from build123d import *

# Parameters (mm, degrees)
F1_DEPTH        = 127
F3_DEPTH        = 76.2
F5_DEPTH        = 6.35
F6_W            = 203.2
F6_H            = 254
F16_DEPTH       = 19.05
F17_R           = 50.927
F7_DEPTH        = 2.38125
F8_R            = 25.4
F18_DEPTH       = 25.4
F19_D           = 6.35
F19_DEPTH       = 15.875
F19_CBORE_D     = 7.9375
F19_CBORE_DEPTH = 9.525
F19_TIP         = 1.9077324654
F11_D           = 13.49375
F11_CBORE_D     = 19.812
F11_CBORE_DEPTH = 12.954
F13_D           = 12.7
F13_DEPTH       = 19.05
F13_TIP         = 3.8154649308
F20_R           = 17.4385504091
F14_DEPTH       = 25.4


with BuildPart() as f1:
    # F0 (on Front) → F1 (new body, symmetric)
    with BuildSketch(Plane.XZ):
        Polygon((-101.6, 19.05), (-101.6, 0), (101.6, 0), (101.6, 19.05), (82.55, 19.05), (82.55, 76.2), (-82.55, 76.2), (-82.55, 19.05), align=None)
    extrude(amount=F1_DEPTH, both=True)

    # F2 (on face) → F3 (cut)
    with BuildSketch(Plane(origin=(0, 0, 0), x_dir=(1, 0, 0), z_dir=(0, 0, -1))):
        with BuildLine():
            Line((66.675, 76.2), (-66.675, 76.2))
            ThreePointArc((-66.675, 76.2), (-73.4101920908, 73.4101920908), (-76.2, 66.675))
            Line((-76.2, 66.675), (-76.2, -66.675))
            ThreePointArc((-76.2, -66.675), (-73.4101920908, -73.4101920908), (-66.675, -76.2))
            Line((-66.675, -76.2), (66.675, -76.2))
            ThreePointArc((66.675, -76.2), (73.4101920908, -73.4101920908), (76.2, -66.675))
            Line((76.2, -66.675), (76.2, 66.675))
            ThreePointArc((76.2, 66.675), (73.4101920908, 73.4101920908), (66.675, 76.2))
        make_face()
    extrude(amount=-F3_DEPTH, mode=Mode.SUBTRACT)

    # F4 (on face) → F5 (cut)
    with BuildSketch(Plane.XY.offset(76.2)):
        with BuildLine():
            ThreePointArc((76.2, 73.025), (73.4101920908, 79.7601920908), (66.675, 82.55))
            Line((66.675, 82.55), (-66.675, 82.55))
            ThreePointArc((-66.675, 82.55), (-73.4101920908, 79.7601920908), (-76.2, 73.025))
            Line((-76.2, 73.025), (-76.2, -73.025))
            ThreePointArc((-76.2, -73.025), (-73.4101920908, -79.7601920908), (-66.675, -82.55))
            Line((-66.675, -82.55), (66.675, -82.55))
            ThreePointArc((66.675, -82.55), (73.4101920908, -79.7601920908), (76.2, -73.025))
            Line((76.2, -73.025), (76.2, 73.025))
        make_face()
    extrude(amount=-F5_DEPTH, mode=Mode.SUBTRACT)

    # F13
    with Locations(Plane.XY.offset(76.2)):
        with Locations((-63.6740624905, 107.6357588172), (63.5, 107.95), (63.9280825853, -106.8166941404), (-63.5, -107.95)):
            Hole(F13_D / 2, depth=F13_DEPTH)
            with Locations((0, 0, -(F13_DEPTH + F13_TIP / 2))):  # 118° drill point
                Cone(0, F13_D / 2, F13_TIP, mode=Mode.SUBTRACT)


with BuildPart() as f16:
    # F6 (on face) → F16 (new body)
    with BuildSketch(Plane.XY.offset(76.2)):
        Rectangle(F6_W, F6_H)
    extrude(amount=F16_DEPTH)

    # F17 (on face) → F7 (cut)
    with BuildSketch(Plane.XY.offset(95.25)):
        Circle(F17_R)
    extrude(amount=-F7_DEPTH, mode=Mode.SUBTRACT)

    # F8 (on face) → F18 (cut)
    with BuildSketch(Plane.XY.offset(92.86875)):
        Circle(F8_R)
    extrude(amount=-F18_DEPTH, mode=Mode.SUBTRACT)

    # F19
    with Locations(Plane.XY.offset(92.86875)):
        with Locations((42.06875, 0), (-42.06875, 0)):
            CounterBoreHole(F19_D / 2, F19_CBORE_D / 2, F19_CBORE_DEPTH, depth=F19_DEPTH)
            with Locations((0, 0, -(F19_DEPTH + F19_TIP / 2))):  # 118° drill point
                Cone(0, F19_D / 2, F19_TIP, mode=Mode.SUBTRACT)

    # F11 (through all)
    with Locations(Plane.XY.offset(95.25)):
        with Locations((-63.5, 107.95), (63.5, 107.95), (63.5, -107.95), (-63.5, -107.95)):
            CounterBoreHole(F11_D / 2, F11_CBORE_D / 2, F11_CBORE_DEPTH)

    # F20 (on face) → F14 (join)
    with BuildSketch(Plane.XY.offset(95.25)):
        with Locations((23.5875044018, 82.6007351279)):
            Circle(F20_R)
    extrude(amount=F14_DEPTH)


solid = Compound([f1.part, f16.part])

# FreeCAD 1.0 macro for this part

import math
import FreeCAD as App
import Part
import Sketcher

V = App.Vector
Q = App.Units.Quantity

doc = App.newDocument("Part")
body = doc.addObject("PartDesign::Body", "Body")

# Sketch on XZ plane
sketch1 = body.newObject("Sketcher::SketchObject", "Sketch")
sketch1.AttachmentSupport = (doc.getObject("XZ_Plane"), [""])
sketch1.MapMode = "FlatFace"
sketch1.addGeometry(Part.LineSegment(V(-101.6, 19.05, 0), V(-101.6, 0, 0)), False)
sketch1.addGeometry(Part.LineSegment(V(-101.6, 0, 0), V(101.6, 0, 0)), False)
sketch1.addGeometry(Part.LineSegment(V(101.6, 0, 0), V(101.6, 19.05, 0)), False)
sketch1.addGeometry(Part.LineSegment(V(101.6, 19.05, 0), V(82.55, 19.05, 0)), False)
sketch1.addGeometry(Part.LineSegment(V(82.55, 19.05, 0), V(82.55, 76.2, 0)), False)
sketch1.addGeometry(Part.LineSegment(V(82.55, 76.2, 0), V(-82.55, 76.2, 0)), False)
sketch1.addGeometry(Part.LineSegment(V(-82.55, 76.2, 0), V(-82.55, 19.05, 0)), False)
sketch1.addGeometry(Part.LineSegment(V(-82.55, 19.05, 0), V(-101.6, 19.05, 0)), False)
sketch1.addConstraint(Sketcher.Constraint("Coincident", 0, 2, 1, 1))
sketch1.addConstraint(Sketcher.Constraint("Coincident", 1, 2, 2, 1))
sketch1.addConstraint(Sketcher.Constraint("Coincident", 2, 2, 3, 1))
sketch1.addConstraint(Sketcher.Constraint("Coincident", 3, 2, 4, 1))
sketch1.addConstraint(Sketcher.Constraint("Coincident", 4, 2, 5, 1))
sketch1.addConstraint(Sketcher.Constraint("Coincident", 5, 2, 6, 1))
sketch1.addConstraint(Sketcher.Constraint("Coincident", 6, 2, 7, 1))
sketch1.addConstraint(Sketcher.Constraint("Coincident", 7, 2, 0, 1))
sketch1.addConstraint(Sketcher.Constraint("Vertical", 0))
sketch1.addConstraint(Sketcher.Constraint("Horizontal", 1))
sketch1.addConstraint(Sketcher.Constraint("Vertical", 2))
sketch1.addConstraint(Sketcher.Constraint("Horizontal", 3))
sketch1.addConstraint(Sketcher.Constraint("Vertical", 4))
sketch1.addConstraint(Sketcher.Constraint("Horizontal", 5))
sketch1.addConstraint(Sketcher.Constraint("Vertical", 6))
sketch1.addConstraint(Sketcher.Constraint("Horizontal", 7))
sketch1.addConstraint(Sketcher.Constraint("Symmetric", 0, 2, 1, 2, -1, 1))
sketch1.addConstraint(Sketcher.Constraint("Symmetric", 3, 2, 6, 2, -2))
sketch1.addConstraint(Sketcher.Constraint("Equal", 7, 0))
sketch1.addConstraint(Sketcher.Constraint("DistanceX", 1, 1, 1, 2, Q("8 in")))
sketch1.addConstraint(Sketcher.Constraint("DistanceX", 5, 2, 5, 1, Q("6.5 in")))
sketch1.addConstraint(Sketcher.Constraint("DistanceY", -1, 1, 4, 2, Q("3 in")))
pad1 = body.newObject("PartDesign::Pad", "Pad")
pad1.Profile = sketch1
pad1.Length = Q("10 in")
pad1.Midplane = True

# Sketch on XY plane
sketch2 = body.newObject("Sketcher::SketchObject", "Sketch001")
sketch2.AttachmentSupport = (doc.getObject("XY_Plane"), [""])
sketch2.MapMode = "FlatFace"
sketch2.addGeometry(Part.LineSegment(V(66.675, -76.2, 0), V(-66.675, -76.2, 0)), False)
sketch2.addGeometry(Part.ArcOfCircle(Part.Circle(V(-66.675, -66.675, 0), V(0, 0, 1), 9.525), math.radians(180), math.radians(270)), False)
sketch2.addGeometry(Part.LineSegment(V(-76.2, -66.675, 0), V(-76.2, 66.675, 0)), False)
sketch2.addGeometry(Part.ArcOfCircle(Part.Circle(V(-66.675, 66.675, 0), V(0, 0, 1), 9.525), math.radians(90), math.radians(180)), False)
sketch2.addGeometry(Part.LineSegment(V(-66.675, 76.2, 0), V(66.675, 76.2, 0)), False)
sketch2.addGeometry(Part.ArcOfCircle(Part.Circle(V(66.675, 66.675, 0), V(0, 0, 1), 9.525), math.radians(0), math.radians(90)), False)
sketch2.addGeometry(Part.LineSegment(V(76.2, 66.675, 0), V(76.2, -66.675, 0)), False)
sketch2.addGeometry(Part.ArcOfCircle(Part.Circle(V(66.675, -66.675, 0), V(0, 0, 1), 9.525), math.radians(-90), math.radians(0)), False)
sketch2.addConstraint(Sketcher.Constraint("Tangent", 0, 2, 1, 2))
sketch2.addConstraint(Sketcher.Constraint("Tangent", 1, 1, 2, 1))
sketch2.addConstraint(Sketcher.Constraint("Tangent", 2, 2, 3, 2))
sketch2.addConstraint(Sketcher.Constraint("Tangent", 3, 1, 4, 1))
sketch2.addConstraint(Sketcher.Constraint("Tangent", 4, 2, 5, 2))
sketch2.addConstraint(Sketcher.Constraint("Tangent", 5, 1, 6, 1))
sketch2.addConstraint(Sketcher.Constraint("Tangent", 6, 2, 7, 2))
sketch2.addConstraint(Sketcher.Constraint("Tangent", 7, 1, 0, 1))
sketch2.addConstraint(Sketcher.Constraint("Horizontal", 0))
sketch2.addConstraint(Sketcher.Constraint("Vertical", 2))
sketch2.addConstraint(Sketcher.Constraint("Horizontal", 4))
sketch2.addConstraint(Sketcher.Constraint("Vertical", 6))
sketch2.addConstraint(Sketcher.Constraint("Equal", 1, 3))
sketch2.addConstraint(Sketcher.Constraint("Equal", 3, 5))
sketch2.addConstraint(Sketcher.Constraint("Equal", 5, 7))
sketch2.addConstraint(Sketcher.Constraint("Symmetric", 1, 3, 5, 3, -1, 1))
sketch2.addConstraint(Sketcher.Constraint("Equal", 4, 2))
sketch2.addConstraint(Sketcher.Constraint("DistanceY", 0, 2, -1, 1, Q("3 in")))
sketch2.addConstraint(Sketcher.Constraint("Radius", 1, Q("0.375 in")))
pocket1 = body.newObject("PartDesign::Pocket", "Pocket")
pocket1.Profile = sketch2
pocket1.Length = Q("3 in")
pocket1.Reversed = True

# Sketch on XY plane
sketch3 = body.newObject("Sketcher::SketchObject", "Sketch002")
sketch3.AttachmentSupport = (doc.getObject("XY_Plane"), [""])
sketch3.MapMode = "FlatFace"
sketch3.AttachmentOffset = App.Placement(V(0, 0, 3 * 25.4), App.Rotation())
sketch3.addGeometry(Part.ArcOfCircle(Part.Circle(V(66.675, 73.025, 0), V(0, 0, 1), 9.525), math.radians(0), math.radians(90)), False)
sketch3.addGeometry(Part.LineSegment(V(66.675, 82.55, 0), V(-66.675, 82.55, 0)), False)
sketch3.addGeometry(Part.ArcOfCircle(Part.Circle(V(-66.675, 73.025, 0), V(0, 0, 1), 9.525), math.radians(90), math.radians(180)), False)
sketch3.addGeometry(Part.LineSegment(V(-76.2, 73.025, 0), V(-76.2, -73.025, 0)), False)
sketch3.addGeometry(Part.ArcOfCircle(Part.Circle(V(-66.675, -73.025, 0), V(0, 0, 1), 9.525), math.radians(180), math.radians(270)), False)
sketch3.addGeometry(Part.LineSegment(V(-66.675, -82.55, 0), V(66.675, -82.55, 0)), False)
sketch3.addGeometry(Part.ArcOfCircle(Part.Circle(V(66.675, -73.025, 0), V(0, 0, 1), 9.525), math.radians(-90), math.radians(0)), False)
sketch3.addGeometry(Part.LineSegment(V(76.2, -73.025, 0), V(76.2, 73.025, 0)), False)
sketch3.addConstraint(Sketcher.Constraint("Tangent", 0, 2, 1, 1))
sketch3.addConstraint(Sketcher.Constraint("Tangent", 1, 2, 2, 1))
sketch3.addConstraint(Sketcher.Constraint("Tangent", 2, 2, 3, 1))
sketch3.addConstraint(Sketcher.Constraint("Tangent", 3, 2, 4, 1))
sketch3.addConstraint(Sketcher.Constraint("Tangent", 4, 2, 5, 1))
sketch3.addConstraint(Sketcher.Constraint("Tangent", 5, 2, 6, 1))
sketch3.addConstraint(Sketcher.Constraint("Tangent", 6, 2, 7, 1))
sketch3.addConstraint(Sketcher.Constraint("Tangent", 7, 2, 0, 1))
sketch3.addConstraint(Sketcher.Constraint("Horizontal", 1))
sketch3.addConstraint(Sketcher.Constraint("Vertical", 3))
sketch3.addConstraint(Sketcher.Constraint("Horizontal", 5))
sketch3.addConstraint(Sketcher.Constraint("Vertical", 7))
sketch3.addConstraint(Sketcher.Constraint("Equal", 0, 2))
sketch3.addConstraint(Sketcher.Constraint("Equal", 2, 4))
sketch3.addConstraint(Sketcher.Constraint("Equal", 4, 6))
sketch3.addConstraint(Sketcher.Constraint("Symmetric", 0, 3, 4, 3, -1, 1))
sketch3.addConstraint(Sketcher.Constraint("DistanceX", 2, 2, -1, 1, Q("3 in")))
sketch3.addConstraint(Sketcher.Constraint("Radius", 0, Q("0.375 in")))
sketch3.addConstraint(Sketcher.Constraint("DistanceY", 3, 2, 3, 1, Q("5.75 in")))
pocket2 = body.newObject("PartDesign::Pocket", "Pocket001")
pocket2.Profile = sketch3
pocket2.Length = Q("0.25 in")

# Sketch on XY plane
sketch4 = body.newObject("Sketcher::SketchObject", "Sketch003")
sketch4.AttachmentSupport = (doc.getObject("XY_Plane"), [""])
sketch4.MapMode = "FlatFace"
sketch4.AttachmentOffset = App.Placement(V(0, 0, 3 * 25.4), App.Rotation())
sketch4.addGeometry(Part.Circle(V(-63.674062, 107.635759, 0), V(0, 0, 1), 6.35), False)
sketch4.addGeometry(Part.Circle(V(63.5, 107.95, 0), V(0, 0, 1), 6.35), False)
sketch4.addGeometry(Part.Circle(V(63.928083, -106.816694, 0), V(0, 0, 1), 6.35), False)
sketch4.addGeometry(Part.Circle(V(-63.5, -107.95, 0), V(0, 0, 1), 6.35), False)
sketch4.addConstraint(Sketcher.Constraint("Equal", 0, 1))
sketch4.addConstraint(Sketcher.Constraint("Equal", 1, 2))
sketch4.addConstraint(Sketcher.Constraint("Equal", 2, 3))
sketch4.addConstraint(Sketcher.Constraint("Symmetric", 1, 3, 3, 3, -1, 1))
sketch4.addConstraint(Sketcher.Constraint("Diameter", 0, Q("0.5 in")))
sketch4.addConstraint(Sketcher.Constraint("DistanceX", 3, 3, 1, 3, Q("5 in")))
sketch4.addConstraint(Sketcher.Constraint("DistanceY", 3, 3, 1, 3, Q("8.5 in")))
sketch4.addConstraint(Sketcher.Constraint("DistanceY", -1, 1, 0, 3, 107.635759))
sketch4.addConstraint(Sketcher.Constraint("DistanceX", 0, 3, -1, 1, 63.674062))
sketch4.addConstraint(Sketcher.Constraint("DistanceX", -1, 1, 2, 3, 63.928083))
sketch4.addConstraint(Sketcher.Constraint("DistanceY", 2, 3, -1, 1, 106.816694))
doc.recompute()
hole = body.newObject("PartDesign::Hole", "Hole")
hole.Profile = sketch4
hole.ThreadType = "None"
hole.Diameter = Q("0.5 in")
hole.DepthType = "Dimension"
hole.Depth = Q("0.75 in")
hole.DrillPoint = "Angled"
hole.DrillPointAngle = 118
body2 = doc.addObject("PartDesign::Body", "Body001")

# Sketch on XY plane
sketch5 = body2.newObject("Sketcher::SketchObject", "Sketch004")
sketch5.AttachmentSupport = (doc.getObject("XY_Plane001"), [""])
sketch5.MapMode = "FlatFace"
sketch5.AttachmentOffset = App.Placement(V(0, 0, 3 * 25.4), App.Rotation())
sketch5.addGeometry(Part.LineSegment(V(-101.6, 127, 0), V(-101.6, -127, 0)), False)
sketch5.addGeometry(Part.LineSegment(V(-101.6, -127, 0), V(101.6, -127, 0)), False)
sketch5.addGeometry(Part.LineSegment(V(101.6, -127, 0), V(101.6, 127, 0)), False)
sketch5.addGeometry(Part.LineSegment(V(101.6, 127, 0), V(-101.6, 127, 0)), False)
sketch5.addConstraint(Sketcher.Constraint("Coincident", 0, 2, 1, 1))
sketch5.addConstraint(Sketcher.Constraint("Coincident", 1, 2, 2, 1))
sketch5.addConstraint(Sketcher.Constraint("Coincident", 2, 2, 3, 1))
sketch5.addConstraint(Sketcher.Constraint("Coincident", 3, 2, 0, 1))
sketch5.addConstraint(Sketcher.Constraint("Vertical", 0))
sketch5.addConstraint(Sketcher.Constraint("Horizontal", 1))
sketch5.addConstraint(Sketcher.Constraint("Vertical", 2))
sketch5.addConstraint(Sketcher.Constraint("Horizontal", 3))
sketch5.addConstraint(Sketcher.Constraint("Symmetric", 0, 2, 2, 2, -1, 1))
sketch5.addConstraint(Sketcher.Constraint("DistanceX", 1, 1, 1, 2, Q("8 in")))
sketch5.addConstraint(Sketcher.Constraint("DistanceY", 0, 2, 0, 1, Q("10 in")))
pad2 = body2.newObject("PartDesign::Pad", "Pad001")
pad2.Profile = sketch5
pad2.Length = Q("0.75 in")

# Sketch on XY plane
sketch6 = body2.newObject("Sketcher::SketchObject", "Sketch005")
sketch6.AttachmentSupport = (doc.getObject("XY_Plane001"), [""])
sketch6.MapMode = "FlatFace"
sketch6.AttachmentOffset = App.Placement(V(0, 0, 3.75 * 25.4), App.Rotation())
sketch6.addGeometry(Part.Circle(V(0, 0, 0), V(0, 0, 1), 50.927), False)
sketch6.addConstraint(Sketcher.Constraint("Coincident", 0, 3, -1, 1))
sketch6.addConstraint(Sketcher.Constraint("Diameter", 0, Q("4.01 in")))
pocket3 = body2.newObject("PartDesign::Pocket", "Pocket002")
pocket3.Profile = sketch6
pocket3.Length = Q("0.09375 in")

# Sketch on XY plane
sketch7 = body2.newObject("Sketcher::SketchObject", "Sketch006")
sketch7.AttachmentSupport = (doc.getObject("XY_Plane001"), [""])
sketch7.MapMode = "FlatFace"
sketch7.AttachmentOffset = App.Placement(V(0, 0, 3.65625 * 25.4), App.Rotation())
sketch7.addGeometry(Part.Circle(V(0, 0, 0), V(0, 0, 1), 25.4), False)
sketch7.addConstraint(Sketcher.Constraint("Coincident", 0, 3, -1, 1))
sketch7.addConstraint(Sketcher.Constraint("Diameter", 0, Q("2 in")))
pocket4 = body2.newObject("PartDesign::Pocket", "Pocket003")
pocket4.Profile = sketch7
pocket4.Length = Q("1 in")

# Sketch on XY plane
sketch8 = body2.newObject("Sketcher::SketchObject", "Sketch007")
sketch8.AttachmentSupport = (doc.getObject("XY_Plane001"), [""])
sketch8.MapMode = "FlatFace"
sketch8.AttachmentOffset = App.Placement(V(0, 0, 3.65625 * 25.4), App.Rotation())
sketch8.addGeometry(Part.Circle(V(42.06875, 0, 0), V(0, 0, 1), 3.175), False)
sketch8.addGeometry(Part.Circle(V(-42.06875, 0, 0), V(0, 0, 1), 3.175), False)
sketch8.addConstraint(Sketcher.Constraint("Equal", 0, 1))
sketch8.addConstraint(Sketcher.Constraint("Symmetric", 0, 3, 1, 3, -1, 1))
sketch8.addConstraint(Sketcher.Constraint("PointOnObject", 0, 3, -1))
sketch8.addConstraint(Sketcher.Constraint("Diameter", 0, Q("0.25 in")))
sketch8.addConstraint(Sketcher.Constraint("DistanceX", -1, 1, 0, 3, Q("1.65625 in")))
doc.recompute()
hole2 = body2.newObject("PartDesign::Hole", "Hole001")
hole2.Profile = sketch8
hole2.ThreadType = "None"
hole2.Diameter = Q("0.25 in")
hole2.DepthType = "Dimension"
hole2.Depth = Q("0.625 in")
hole2.DrillPoint = "Angled"
hole2.DrillPointAngle = 118
hole2.HoleCutType = "Counterbore"
hole2.HoleCutDiameter = Q("0.3125 in")
hole2.HoleCutDepth = Q("0.375 in")

# Sketch on XY plane
sketch9 = body2.newObject("Sketcher::SketchObject", "Sketch008")
sketch9.AttachmentSupport = (doc.getObject("XY_Plane001"), [""])
sketch9.MapMode = "FlatFace"
sketch9.AttachmentOffset = App.Placement(V(0, 0, 3.75 * 25.4), App.Rotation())
sketch9.addGeometry(Part.Circle(V(-63.5, 107.95, 0), V(0, 0, 1), 6.746875), False)
sketch9.addGeometry(Part.Circle(V(63.5, 107.95, 0), V(0, 0, 1), 6.746875), False)
sketch9.addGeometry(Part.Circle(V(63.5, -107.95, 0), V(0, 0, 1), 6.746875), False)
sketch9.addGeometry(Part.Circle(V(-63.5, -107.95, 0), V(0, 0, 1), 6.746875), False)
sketch9.addConstraint(Sketcher.Constraint("Equal", 0, 1))
sketch9.addConstraint(Sketcher.Constraint("Equal", 1, 2))
sketch9.addConstraint(Sketcher.Constraint("Equal", 2, 3))
sketch9.addConstraint(Sketcher.Constraint("Symmetric", 0, 3, 2, 3, -1, 1))
sketch9.addConstraint(Sketcher.Constraint("Symmetric", 1, 3, 3, 3, -1, 1))
sketch9.addConstraint(Sketcher.Constraint("Symmetric", 0, 3, 1, 3, -2))
sketch9.addConstraint(Sketcher.Constraint("Diameter", 0, Q("0.53125 in")))
sketch9.addConstraint(Sketcher.Constraint("DistanceX", 0, 3, 1, 3, Q("5 in")))
sketch9.addConstraint(Sketcher.Constraint("DistanceY", 2, 3, 1, 3, Q("8.5 in")))
doc.recompute()
hole3 = body2.newObject("PartDesign::Hole", "Hole002")
hole3.Profile = sketch9
hole3.ThreadType = "None"
hole3.Diameter = Q("0.53125 in")
hole3.DepthType = "ThroughAll"
hole3.HoleCutType = "Counterbore"
hole3.HoleCutDiameter = Q("0.78 in")
hole3.HoleCutDepth = Q("0.51 in")

# Sketch on XY plane
sketch10 = body2.newObject("Sketcher::SketchObject", "Sketch009")
sketch10.AttachmentSupport = (doc.getObject("XY_Plane001"), [""])
sketch10.MapMode = "FlatFace"
sketch10.AttachmentOffset = App.Placement(V(0, 0, 3.75 * 25.4), App.Rotation())
sketch10.addGeometry(Part.Circle(V(23.587504, 82.600735, 0), V(0, 0, 1), 17.43855), False)
sketch10.addConstraint(Sketcher.Constraint("Diameter", 0, 34.877101))
sketch10.addConstraint(Sketcher.Constraint("DistanceX", -1, 1, 0, 3, 23.587504))
sketch10.addConstraint(Sketcher.Constraint("DistanceY", -1, 1, 0, 3, 82.600735))
pad3 = body2.newObject("PartDesign::Pad", "Pad002")
pad3.Profile = sketch10
pad3.Length = Q("1 in")

doc.recompute()
